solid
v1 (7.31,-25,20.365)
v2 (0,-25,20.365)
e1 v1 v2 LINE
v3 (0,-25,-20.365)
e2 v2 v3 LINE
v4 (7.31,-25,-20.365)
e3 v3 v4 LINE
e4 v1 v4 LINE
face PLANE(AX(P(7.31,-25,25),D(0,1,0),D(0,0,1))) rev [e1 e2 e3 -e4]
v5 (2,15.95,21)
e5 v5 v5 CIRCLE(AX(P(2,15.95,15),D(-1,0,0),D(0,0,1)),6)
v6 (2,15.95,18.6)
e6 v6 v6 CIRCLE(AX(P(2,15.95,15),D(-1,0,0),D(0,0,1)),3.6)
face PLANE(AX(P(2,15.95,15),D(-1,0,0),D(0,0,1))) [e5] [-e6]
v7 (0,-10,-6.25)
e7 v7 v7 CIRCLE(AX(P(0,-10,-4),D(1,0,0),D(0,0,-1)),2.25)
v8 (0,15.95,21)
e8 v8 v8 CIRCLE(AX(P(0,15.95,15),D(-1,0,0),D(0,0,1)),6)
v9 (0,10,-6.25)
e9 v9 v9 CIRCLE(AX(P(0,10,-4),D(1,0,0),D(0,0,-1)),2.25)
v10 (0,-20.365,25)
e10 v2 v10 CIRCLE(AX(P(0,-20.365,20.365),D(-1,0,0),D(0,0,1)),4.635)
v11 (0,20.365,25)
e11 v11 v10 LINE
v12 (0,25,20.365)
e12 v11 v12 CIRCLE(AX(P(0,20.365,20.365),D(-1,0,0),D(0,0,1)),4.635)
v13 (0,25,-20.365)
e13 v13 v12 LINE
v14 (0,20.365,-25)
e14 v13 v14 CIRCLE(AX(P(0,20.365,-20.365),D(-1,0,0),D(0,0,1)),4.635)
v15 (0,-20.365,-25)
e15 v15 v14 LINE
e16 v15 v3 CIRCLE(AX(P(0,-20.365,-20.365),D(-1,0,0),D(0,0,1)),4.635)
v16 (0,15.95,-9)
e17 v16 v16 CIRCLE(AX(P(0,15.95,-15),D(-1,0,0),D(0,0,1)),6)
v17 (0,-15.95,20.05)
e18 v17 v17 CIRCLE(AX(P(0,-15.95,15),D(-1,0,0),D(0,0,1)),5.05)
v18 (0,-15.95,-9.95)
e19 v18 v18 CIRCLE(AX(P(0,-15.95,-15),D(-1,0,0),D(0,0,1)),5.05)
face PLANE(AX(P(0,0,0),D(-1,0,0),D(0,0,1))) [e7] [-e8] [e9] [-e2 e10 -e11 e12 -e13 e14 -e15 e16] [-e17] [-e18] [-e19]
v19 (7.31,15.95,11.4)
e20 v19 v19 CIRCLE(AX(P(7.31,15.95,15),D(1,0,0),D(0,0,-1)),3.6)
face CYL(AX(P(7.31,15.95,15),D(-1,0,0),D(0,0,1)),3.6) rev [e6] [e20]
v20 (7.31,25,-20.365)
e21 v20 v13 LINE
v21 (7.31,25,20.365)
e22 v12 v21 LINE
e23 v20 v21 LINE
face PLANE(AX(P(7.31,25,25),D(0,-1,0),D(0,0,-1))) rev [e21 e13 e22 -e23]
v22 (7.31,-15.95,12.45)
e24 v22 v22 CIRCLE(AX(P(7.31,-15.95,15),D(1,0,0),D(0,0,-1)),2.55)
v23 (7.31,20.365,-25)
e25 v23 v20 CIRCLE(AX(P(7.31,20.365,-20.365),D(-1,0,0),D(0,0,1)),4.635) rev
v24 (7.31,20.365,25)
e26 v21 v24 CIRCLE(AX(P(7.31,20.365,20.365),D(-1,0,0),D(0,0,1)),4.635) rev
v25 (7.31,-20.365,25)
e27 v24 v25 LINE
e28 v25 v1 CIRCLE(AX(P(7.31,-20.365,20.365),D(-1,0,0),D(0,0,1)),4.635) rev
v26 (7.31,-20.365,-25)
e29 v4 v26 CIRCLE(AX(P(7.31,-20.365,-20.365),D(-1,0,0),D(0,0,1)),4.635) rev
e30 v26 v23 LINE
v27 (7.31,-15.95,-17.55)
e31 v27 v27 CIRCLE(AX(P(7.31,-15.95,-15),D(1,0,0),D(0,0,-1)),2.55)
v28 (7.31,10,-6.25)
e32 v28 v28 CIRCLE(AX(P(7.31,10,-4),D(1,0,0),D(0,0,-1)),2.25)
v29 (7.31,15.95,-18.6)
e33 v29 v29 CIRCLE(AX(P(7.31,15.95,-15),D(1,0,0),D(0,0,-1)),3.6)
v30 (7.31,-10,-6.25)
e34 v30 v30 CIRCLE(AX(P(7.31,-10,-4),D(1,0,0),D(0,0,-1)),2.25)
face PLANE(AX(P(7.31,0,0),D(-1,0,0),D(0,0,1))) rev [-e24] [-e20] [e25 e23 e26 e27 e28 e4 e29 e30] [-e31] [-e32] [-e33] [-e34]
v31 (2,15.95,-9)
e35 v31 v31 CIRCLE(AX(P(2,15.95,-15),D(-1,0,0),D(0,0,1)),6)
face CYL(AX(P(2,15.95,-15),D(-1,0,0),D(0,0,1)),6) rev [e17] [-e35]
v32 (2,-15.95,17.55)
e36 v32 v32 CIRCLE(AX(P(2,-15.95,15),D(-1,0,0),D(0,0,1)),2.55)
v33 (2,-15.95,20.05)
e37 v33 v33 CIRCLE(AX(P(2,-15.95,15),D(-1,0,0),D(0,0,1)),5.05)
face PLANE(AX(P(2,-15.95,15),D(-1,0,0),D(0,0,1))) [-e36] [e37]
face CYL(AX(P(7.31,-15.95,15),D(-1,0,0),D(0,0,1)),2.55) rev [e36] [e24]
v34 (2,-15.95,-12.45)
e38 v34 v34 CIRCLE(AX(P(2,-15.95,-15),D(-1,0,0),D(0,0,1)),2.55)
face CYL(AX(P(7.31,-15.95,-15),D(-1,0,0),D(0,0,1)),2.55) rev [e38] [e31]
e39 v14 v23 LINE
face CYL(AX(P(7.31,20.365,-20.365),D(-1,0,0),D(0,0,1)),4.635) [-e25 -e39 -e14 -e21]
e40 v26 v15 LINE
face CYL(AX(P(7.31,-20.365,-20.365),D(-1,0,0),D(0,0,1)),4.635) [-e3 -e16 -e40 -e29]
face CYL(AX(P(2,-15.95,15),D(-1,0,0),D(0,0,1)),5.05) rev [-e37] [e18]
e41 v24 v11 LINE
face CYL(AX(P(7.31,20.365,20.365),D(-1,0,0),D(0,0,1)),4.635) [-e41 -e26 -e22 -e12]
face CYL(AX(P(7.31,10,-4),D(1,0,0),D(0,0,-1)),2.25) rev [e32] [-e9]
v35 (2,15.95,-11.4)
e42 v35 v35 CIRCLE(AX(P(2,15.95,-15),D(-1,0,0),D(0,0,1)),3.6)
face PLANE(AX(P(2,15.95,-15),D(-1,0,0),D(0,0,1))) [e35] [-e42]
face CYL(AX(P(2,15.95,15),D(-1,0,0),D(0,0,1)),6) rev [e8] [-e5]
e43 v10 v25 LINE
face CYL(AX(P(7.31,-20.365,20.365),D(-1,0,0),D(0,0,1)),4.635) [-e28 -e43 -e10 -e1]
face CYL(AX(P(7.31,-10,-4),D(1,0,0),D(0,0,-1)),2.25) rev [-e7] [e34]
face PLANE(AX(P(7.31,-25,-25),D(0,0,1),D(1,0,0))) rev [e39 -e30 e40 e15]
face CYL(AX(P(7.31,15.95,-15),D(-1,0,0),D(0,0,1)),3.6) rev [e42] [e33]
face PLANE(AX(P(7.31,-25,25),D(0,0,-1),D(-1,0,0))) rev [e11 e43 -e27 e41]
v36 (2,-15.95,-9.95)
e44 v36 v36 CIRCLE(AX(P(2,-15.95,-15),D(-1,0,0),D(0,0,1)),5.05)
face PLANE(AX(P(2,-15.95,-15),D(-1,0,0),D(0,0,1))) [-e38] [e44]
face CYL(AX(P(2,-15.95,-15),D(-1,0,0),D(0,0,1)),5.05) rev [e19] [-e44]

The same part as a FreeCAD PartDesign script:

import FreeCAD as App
import Part
import Sketcher
from FreeCAD import Vector


def edges_at(feature, points):
    """Names of the edges that pass closest to the given points."""
    edges = feature.Shape.Edges
    near = lambda p: min(range(len(edges)), key=lambda i: edges[i].distToShape(Part.Vertex(*p))[0])
    return sorted({f"Edge{near(p) + 1}" for p in points})


def add_polygon(sketch, points):
    """Adds a closed chain of lines whose ends are joined by coincident constraints."""
    first, n = sketch.GeometryCount, len(points)
    for a, b in zip(points, points[1:] + points[:1]):
        sketch.addGeometry(Part.LineSegment(App.Vector(*a, 0), App.Vector(*b, 0)), False)
    for i in range(n):
        sketch.addConstraint(Sketcher.Constraint("Coincident", first + i, 2, first + (i + 1) % n, 1))

doc = App.newDocument("Part")
body = doc.addObject("PartDesign::Body", "Body")

# Sketch on YZ plane
sketch1 = body.newObject("Sketcher::SketchObject", "Sketch")
sketch1.AttachmentSupport = (doc.getObject("YZ_Plane"), [""])
sketch1.MapMode = "FlatFace"
add_polygon(sketch1, [(25, 25), (-25, 25), (-25, -25), (25, -25)])  # lines 0-3
sketch1.addConstraint(Sketcher.Constraint("Horizontal", 0))
sketch1.addConstraint(Sketcher.Constraint("Vertical", 1))
sketch1.addConstraint(Sketcher.Constraint("Horizontal", 2))
sketch1.addConstraint(Sketcher.Constraint("Vertical", 3))
sketch1.addConstraint(Sketcher.Constraint("Symmetric", 0, 2, 2, 2, -1, 1))
sketch1.addConstraint(Sketcher.Constraint("Equal", 2, 1))
sketch1.addConstraint(Sketcher.Constraint("DistanceX", 0, 2, 0, 1, 50.0))
pad1 = body.newObject("PartDesign::Pad", "Pad")
pad1.Profile = sketch1
pad1.Length = 7.31

# Sketch on YZ plane
sketch2 = body.newObject("Sketcher::SketchObject", "Sketch001")
sketch2.AttachmentSupport = (doc.getObject("YZ_Plane"), [""])
sketch2.MapMode = "FlatFace"
sketch2.addGeometry(Part.Circle(Vector(15.95, 15, 0), Vector(0, 0, 1), 3.6), False)
sketch2.addGeometry(Part.Circle(Vector(15.95, -15, 0), Vector(0, 0, 1), 3.6), False)
sketch2.addGeometry(Part.Circle(Vector(-15.95, 15, 0), Vector(0, 0, 1), 2.55), False)
sketch2.addGeometry(Part.Circle(Vector(-15.95, -15, 0), Vector(0, 0, 1), 2.55), False)
sketch2.addConstraint(Sketcher.Constraint("Equal", 0, 1))
sketch2.addConstraint(Sketcher.Constraint("Equal", 2, 3))
sketch2.addConstraint(Sketcher.Constraint("Symmetric", 1, 3, 2, 3, -1, 1))
sketch2.addConstraint(Sketcher.Constraint("Symmetric", 0, 3, 3, 3, -1, 1))
sketch2.addConstraint(Sketcher.Constraint("Symmetric", 0, 3, 2, 3, -2))
sketch2.addConstraint(Sketcher.Constraint("Diameter", 0, 7.2))
sketch2.addConstraint(Sketcher.Constraint("Diameter", 2, 5.1))
sketch2.addConstraint(Sketcher.Constraint("DistanceY", -1, 1, 0, 3, 15.0))
sketch2.addConstraint(Sketcher.Constraint("DistanceX", 2, 3, 0, 3, 31.9))
pocket1 = body.newObject("PartDesign::Pocket", "Pocket")
pocket1.Profile = sketch2
pocket1.Type = "ThroughAll"
pocket1.Reversed = True

# Sketch on YZ plane
sketch3 = body.newObject("Sketcher::SketchObject", "Sketch002")
sketch3.AttachmentSupport = (doc.getObject("YZ_Plane"), [""])
sketch3.MapMode = "FlatFace"
sketch3.addGeometry(Part.Circle(Vector(-15.95, -15, 0), Vector(0, 0, 1), 5.05), False)
sketch3.addGeometry(Part.Circle(Vector(-15.95, 15, 0), Vector(0, 0, 1), 5.05), False)
sketch3.addGeometry(Part.Circle(Vector(15.95, -15, 0), Vector(0, 0, 1), 6), False)
sketch3.addGeometry(Part.Circle(Vector(15.95, 15, 0), Vector(0, 0, 1), 6), False)
sketch3.addConstraint(Sketcher.Constraint("Equal", 0, 1))
sketch3.addConstraint(Sketcher.Constraint("Equal", 2, 3))
sketch3.addConstraint(Sketcher.Constraint("Symmetric", 1, 3, 2, 3, -1, 1))
sketch3.addConstraint(Sketcher.Constraint("Symmetric", 0, 3, 3, 3, -1, 1))
sketch3.addConstraint(Sketcher.Constraint("Symmetric", 0, 3, 2, 3, -2))
sketch3.addConstraint(Sketcher.Constraint("Diameter", 2, 12.0))
sketch3.addConstraint(Sketcher.Constraint("Diameter", 0, 10.1))
sketch3.addConstraint(Sketcher.Constraint("DistanceY", 0, 3, -1, 1, 15.0))
sketch3.addConstraint(Sketcher.Constraint("DistanceX", 0, 3, 2, 3, 31.9))
pocket2 = body.newObject("PartDesign::Pocket", "Pocket001")
pocket2.Profile = sketch3
pocket2.Length = 2
pocket2.Reversed = True

# Sketch on YZ plane
sketch4 = body.newObject("Sketcher::SketchObject", "Sketch003")
sketch4.AttachmentSupport = (doc.getObject("YZ_Plane"), [""])
sketch4.MapMode = "FlatFace"
sketch4.AttachmentOffset = App.Placement(Vector(0, 0, 7.31), App.Rotation())
sketch4.addGeometry(Part.Circle(Vector(-10, -4, 0), Vector(0, 0, 1), 2.25), False)
sketch4.addGeometry(Part.Circle(Vector(10, -4, 0), Vector(0, 0, 1), 2.25), False)
sketch4.addConstraint(Sketcher.Constraint("Equal", 0, 1))
sketch4.addConstraint(Sketcher.Constraint("Symmetric", 0, 3, 1, 3, -2))
sketch4.addConstraint(Sketcher.Constraint("Diameter", 0, 4.5))
sketch4.addConstraint(Sketcher.Constraint("DistanceX", 0, 3, -1, 1, 10.0))
sketch4.addConstraint(Sketcher.Constraint("DistanceY", 0, 3, -1, 1, 4.0))
doc.recompute()
hole = body.newObject("PartDesign::Hole", "Hole")
hole.Profile = sketch4
hole.ThreadType = "None"
hole.Diameter = 4.5
hole.DepthType = "ThroughAll"
doc.recompute()

fillet = body.newObject("PartDesign::Fillet", "Fillet")
fillet.Base = (hole, edges_at(hole, [
    (3.655, -25, -25),
    (3.655, -25, 25),
    (3.655, 25, 25),
    (3.655, 25, -25),
]))
fillet.Radius = 4.635

doc.recompute()
